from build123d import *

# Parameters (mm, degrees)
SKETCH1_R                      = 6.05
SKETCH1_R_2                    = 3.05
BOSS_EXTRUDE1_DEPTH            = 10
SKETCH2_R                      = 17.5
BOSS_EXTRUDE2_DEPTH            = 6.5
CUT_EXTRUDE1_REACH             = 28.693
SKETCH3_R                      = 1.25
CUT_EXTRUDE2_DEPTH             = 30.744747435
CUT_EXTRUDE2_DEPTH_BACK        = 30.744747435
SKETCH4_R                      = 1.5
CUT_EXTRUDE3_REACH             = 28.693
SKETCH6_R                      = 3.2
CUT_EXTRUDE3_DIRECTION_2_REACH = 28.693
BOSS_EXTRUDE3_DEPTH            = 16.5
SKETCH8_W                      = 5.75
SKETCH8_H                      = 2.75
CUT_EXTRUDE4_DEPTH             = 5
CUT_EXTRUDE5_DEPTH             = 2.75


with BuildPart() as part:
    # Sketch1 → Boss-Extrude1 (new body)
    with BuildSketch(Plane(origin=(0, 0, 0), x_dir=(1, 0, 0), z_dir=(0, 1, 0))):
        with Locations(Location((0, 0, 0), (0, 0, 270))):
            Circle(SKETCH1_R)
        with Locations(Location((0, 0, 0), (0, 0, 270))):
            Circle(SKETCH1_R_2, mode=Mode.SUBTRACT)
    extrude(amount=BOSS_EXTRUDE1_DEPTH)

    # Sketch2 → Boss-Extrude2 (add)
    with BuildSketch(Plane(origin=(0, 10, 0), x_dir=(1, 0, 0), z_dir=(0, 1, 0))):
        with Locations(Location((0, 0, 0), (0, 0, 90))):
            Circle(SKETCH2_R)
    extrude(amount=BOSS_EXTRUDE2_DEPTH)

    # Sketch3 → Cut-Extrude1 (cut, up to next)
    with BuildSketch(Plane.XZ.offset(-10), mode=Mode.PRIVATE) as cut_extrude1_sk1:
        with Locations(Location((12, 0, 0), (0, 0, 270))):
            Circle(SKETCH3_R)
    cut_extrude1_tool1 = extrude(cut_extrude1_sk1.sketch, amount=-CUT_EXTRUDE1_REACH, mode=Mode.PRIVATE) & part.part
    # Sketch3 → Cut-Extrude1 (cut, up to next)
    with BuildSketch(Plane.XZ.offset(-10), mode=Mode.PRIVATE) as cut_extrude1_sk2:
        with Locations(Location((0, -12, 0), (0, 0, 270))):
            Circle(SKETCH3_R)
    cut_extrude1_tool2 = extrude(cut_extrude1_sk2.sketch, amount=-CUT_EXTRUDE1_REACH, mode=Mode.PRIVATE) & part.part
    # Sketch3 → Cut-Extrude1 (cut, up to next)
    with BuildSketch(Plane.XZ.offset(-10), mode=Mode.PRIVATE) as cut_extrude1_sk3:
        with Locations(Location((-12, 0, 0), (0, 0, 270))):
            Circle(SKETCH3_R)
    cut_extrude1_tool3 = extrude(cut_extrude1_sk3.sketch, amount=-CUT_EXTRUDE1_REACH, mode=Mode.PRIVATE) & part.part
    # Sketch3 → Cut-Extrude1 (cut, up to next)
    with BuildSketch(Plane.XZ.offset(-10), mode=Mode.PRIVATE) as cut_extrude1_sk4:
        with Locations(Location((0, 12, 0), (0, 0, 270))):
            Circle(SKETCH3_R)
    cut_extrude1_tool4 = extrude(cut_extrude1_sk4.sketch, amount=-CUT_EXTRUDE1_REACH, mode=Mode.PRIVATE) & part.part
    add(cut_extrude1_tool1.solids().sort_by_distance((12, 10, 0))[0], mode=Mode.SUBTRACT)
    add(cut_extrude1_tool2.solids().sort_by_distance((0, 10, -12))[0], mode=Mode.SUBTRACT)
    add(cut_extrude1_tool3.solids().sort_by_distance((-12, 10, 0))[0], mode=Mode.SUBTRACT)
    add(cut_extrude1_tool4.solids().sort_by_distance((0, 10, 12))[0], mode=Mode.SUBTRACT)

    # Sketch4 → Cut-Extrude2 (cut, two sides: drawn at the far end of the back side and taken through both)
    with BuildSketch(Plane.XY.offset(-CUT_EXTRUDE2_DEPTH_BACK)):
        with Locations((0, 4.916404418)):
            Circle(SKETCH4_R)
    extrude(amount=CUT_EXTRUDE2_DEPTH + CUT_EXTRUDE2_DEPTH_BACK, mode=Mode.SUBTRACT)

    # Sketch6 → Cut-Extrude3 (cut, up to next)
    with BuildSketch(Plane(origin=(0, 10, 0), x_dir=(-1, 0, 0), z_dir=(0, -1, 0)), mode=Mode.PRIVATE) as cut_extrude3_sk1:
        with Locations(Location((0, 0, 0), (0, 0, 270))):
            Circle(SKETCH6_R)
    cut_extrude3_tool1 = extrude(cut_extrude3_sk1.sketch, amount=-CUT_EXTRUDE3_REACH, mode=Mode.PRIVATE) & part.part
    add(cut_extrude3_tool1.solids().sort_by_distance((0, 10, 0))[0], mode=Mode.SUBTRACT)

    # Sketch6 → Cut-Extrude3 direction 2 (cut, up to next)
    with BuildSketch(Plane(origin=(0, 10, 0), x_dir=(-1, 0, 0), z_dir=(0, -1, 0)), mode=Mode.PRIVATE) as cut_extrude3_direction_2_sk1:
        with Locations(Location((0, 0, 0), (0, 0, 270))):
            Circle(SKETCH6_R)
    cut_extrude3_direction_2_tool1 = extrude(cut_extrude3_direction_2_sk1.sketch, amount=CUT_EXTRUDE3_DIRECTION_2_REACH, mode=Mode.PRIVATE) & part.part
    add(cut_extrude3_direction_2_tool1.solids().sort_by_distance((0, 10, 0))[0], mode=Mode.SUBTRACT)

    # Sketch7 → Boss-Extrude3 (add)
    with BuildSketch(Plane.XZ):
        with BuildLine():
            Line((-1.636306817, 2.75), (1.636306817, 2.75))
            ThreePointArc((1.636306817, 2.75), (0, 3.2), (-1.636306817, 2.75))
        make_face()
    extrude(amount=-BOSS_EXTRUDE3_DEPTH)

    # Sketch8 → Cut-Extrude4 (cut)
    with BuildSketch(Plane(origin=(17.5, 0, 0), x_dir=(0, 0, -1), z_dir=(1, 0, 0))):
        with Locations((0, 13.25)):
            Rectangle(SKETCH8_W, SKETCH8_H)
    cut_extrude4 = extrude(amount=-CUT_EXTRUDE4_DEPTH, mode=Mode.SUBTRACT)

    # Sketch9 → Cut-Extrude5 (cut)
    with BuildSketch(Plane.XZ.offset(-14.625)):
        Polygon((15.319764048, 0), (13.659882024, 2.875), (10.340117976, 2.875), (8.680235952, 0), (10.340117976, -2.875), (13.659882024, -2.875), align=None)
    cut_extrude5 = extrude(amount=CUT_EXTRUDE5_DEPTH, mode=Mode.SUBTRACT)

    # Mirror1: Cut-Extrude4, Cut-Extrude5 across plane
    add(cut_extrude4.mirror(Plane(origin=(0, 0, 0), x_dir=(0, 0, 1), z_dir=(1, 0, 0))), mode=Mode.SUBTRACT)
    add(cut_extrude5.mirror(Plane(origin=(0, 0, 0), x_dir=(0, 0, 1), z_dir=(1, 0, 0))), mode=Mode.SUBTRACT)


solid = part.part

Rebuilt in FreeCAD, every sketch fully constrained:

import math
import FreeCAD as App
import Part
import Sketcher
from FreeCAD import Vector
Q = App.Units.Quantity


def add_polygon(sketch, points):
    """Adds a closed chain of lines whose ends are joined by coincident constraints."""
    first, n = sketch.GeometryCount, len(points)
    for a, b in zip(points, points[1:] + points[:1]):
        sketch.addGeometry(Part.LineSegment(App.Vector(*a, 0), App.Vector(*b, 0)), False)
    for i in range(n):
        sketch.addConstraint(Sketcher.Constraint("Coincident", first + i, 2, first + (i + 1) % n, 1))

doc = App.newDocument("Part")
body = doc.addObject("PartDesign::Body", "Body")

sketch1 = body.newObject("Sketcher::SketchObject", "Sketch")
sketch1.AttachmentSupport = (doc.getObject("XZ_Plane"), [""])
sketch1.MapMode = "FlatFace"
sketch1.addGeometry([
    Part.Circle(Vector(0, 0, 0), Vector(0, 0, 1), 6),
    Part.Circle(Vector(0, 0, 0), Vector(0, 0, 1), 3),
], False)
sketch1.addConstraint([
    Sketcher.Constraint("Coincident", 0, 3, -1, 1),
    Sketcher.Constraint("Coincident", 1, 3, -1, 1),
    Sketcher.Constraint("Diameter", 0, Q("12.1 mm")),
    Sketcher.Constraint("Diameter", 1, Q("6.1 mm")),
])
pad1 = body.newObject("PartDesign::Pad", "Pad")
pad1.Profile = sketch1
pad1.Length = 10
pad1.Reversed = True

sketch2 = body.newObject("Sketcher::SketchObject", "Sketch001")
sketch2.AttachmentSupport = (doc.getObject("XZ_Plane"), [""])
sketch2.MapMode = "FlatFace"
sketch2.AttachmentOffset = App.Placement(Vector(0, 0, -10), App.Rotation())
sketch2.addGeometry(Part.Circle(Vector(0, 0, 0), Vector(0, 0, 1), 18), False)
sketch2.addConstraint([
    Sketcher.Constraint("Coincident", 0, 3, -1, 1),
    Sketcher.Constraint("Diameter", 0, Q("35 mm")),
])
pad2 = body.newObject("PartDesign::Pad", "Pad001")
pad2.Profile = sketch2
pad2.Length = 6.5
pad2.Reversed = True

sketch3 = body.newObject("Sketcher::SketchObject", "Sketch002")
sketch3.AttachmentSupport = (doc.getObject("XZ_Plane"), [""])
sketch3.MapMode = "FlatFace"
sketch3.AttachmentOffset = App.Placement(Vector(0, 0, -10), App.Rotation())
sketch3.addGeometry(Part.Circle(Vector(12, 0, 0), Vector(0, 0, 1), 1.2), False)
sketch3.addConstraint([
    Sketcher.Constraint("PointOnObject", 0, 3, -1),
    Sketcher.Constraint("Diameter", 0, Q("2.5 mm")),
    Sketcher.Constraint("DistanceX", -1, 1, 0, 3, Q("12 mm")),
])
pocket1 = body.newObject("PartDesign::Pocket", "Pocket")
pocket1.Profile = sketch3
pocket1.Type = "UpToFirst"

sketch4 = body.newObject("Sketcher::SketchObject", "Sketch003")
sketch4.AttachmentSupport = (doc.getObject("XZ_Plane"), [""])
sketch4.MapMode = "FlatFace"
sketch4.AttachmentOffset = App.Placement(Vector(0, 0, -10), App.Rotation())
sketch4.addGeometry(Part.Circle(Vector(0, -12, 0), Vector(0, 0, 1), 1.2), False)
sketch4.addConstraint([
    Sketcher.Constraint("PointOnObject", 0, 3, -2),
    Sketcher.Constraint("Diameter", 0, Q("2.5 mm")),
    Sketcher.Constraint("DistanceY", 0, 3, -1, 1, Q("12 mm")),
])
pocket2 = body.newObject("PartDesign::Pocket", "Pocket001")
pocket2.Profile = sketch4
pocket2.Type = "UpToFirst"

sketch5 = body.newObject("Sketcher::SketchObject", "Sketch004")
sketch5.AttachmentSupport = (doc.getObject("XZ_Plane"), [""])
sketch5.MapMode = "FlatFace"
sketch5.AttachmentOffset = App.Placement(Vector(0, 0, -10), App.Rotation())
sketch5.addGeometry(Part.Circle(Vector(-12, 0, 0), Vector(0, 0, 1), 1.2), False)
sketch5.addConstraint([
    Sketcher.Constraint("PointOnObject", 0, 3, -1),
    Sketcher.Constraint("Diameter", 0, Q("2.5 mm")),
    Sketcher.Constraint("DistanceX", 0, 3, -1, 1, Q("12 mm")),
])
pocket3 = body.newObject("PartDesign::Pocket", "Pocket002")
pocket3.Profile = sketch5
pocket3.Type = "UpToFirst"

sketch6 = body.newObject("Sketcher::SketchObject", "Sketch005")
sketch6.AttachmentSupport = (doc.getObject("XZ_Plane"), [""])
sketch6.MapMode = "FlatFace"
sketch6.AttachmentOffset = App.Placement(Vector(0, 0, -10), App.Rotation())
sketch6.addGeometry(Part.Circle(Vector(0, 12, 0), Vector(0, 0, 1), 1.2), False)
sketch6.addConstraint([
    Sketcher.Constraint("PointOnObject", 0, 3, -2),
    Sketcher.Constraint("Diameter", 0, Q("2.5 mm")),
    Sketcher.Constraint("DistanceY", -1, 1, 0, 3, Q("12 mm")),
])
pocket4 = body.newObject("PartDesign::Pocket", "Pocket003")
pocket4.Profile = sketch6
pocket4.Type = "UpToFirst"

sketch7 = body.newObject("Sketcher::SketchObject", "Sketch006")
sketch7.AttachmentSupport = (doc.getObject("XY_Plane"), [""])
sketch7.MapMode = "FlatFace"
sketch7.addGeometry(Part.Circle(Vector(0, 4.9, 0), Vector(0, 0, 1), 1.5), False)
sketch7.addConstraint([
    Sketcher.Constraint("PointOnObject", 0, 3, -2),
    Sketcher.Constraint("Diameter", 0, Q("3 mm")),
    Sketcher.Constraint("DistanceY", -1, 1, 0, 3, Q("4.916404 mm")),
])
pocket5 = body.newObject("PartDesign::Pocket", "Pocket004")
pocket5.Profile = sketch7
pocket5.Type = "ThroughAll"
pocket5.Midplane = True

sketch8 = body.newObject("Sketcher::SketchObject", "Sketch007")
sketch8.AttachmentSupport = (doc.getObject("XZ_Plane"), [""])
sketch8.MapMode = "FlatFace"
sketch8.AttachmentOffset = App.Placement(Vector(0, 0, -10), App.Rotation())
sketch8.addGeometry(Part.Circle(Vector(0, 0, 0), Vector(0, 0, 1), 3.2), False)
sketch8.addConstraint([
    Sketcher.Constraint("Coincident", 0, 3, -1, 1),
    Sketcher.Constraint("Diameter", 0, Q("6.4 mm")),
])
pocket6 = body.newObject("PartDesign::Pocket", "Pocket005")
pocket6.Profile = sketch8
pocket6.Type = "UpToFirst"

sketch9 = body.newObject("Sketcher::SketchObject", "Sketch008")
sketch9.AttachmentSupport = (doc.getObject("XZ_Plane"), [""])
sketch9.MapMode = "FlatFace"
sketch9.AttachmentOffset = App.Placement(Vector(0, 0, -10), App.Rotation())
sketch9.addGeometry(Part.Circle(Vector(0, 0, 0), Vector(0, 0, 1), 3.2), False)
sketch9.addConstraint([
    Sketcher.Constraint("Coincident", 0, 3, -1, 1),
    Sketcher.Constraint("Diameter", 0, Q("6.4 mm")),
])
pocket7 = body.newObject("PartDesign::Pocket", "Pocket006")
pocket7.Profile = sketch9
pocket7.Length = 10
pocket7.Reversed = True

sketch10 = body.newObject("Sketcher::SketchObject", "Sketch009")
sketch10.AttachmentSupport = (doc.getObject("XZ_Plane"), [""])
sketch10.MapMode = "FlatFace"
sketch10.addGeometry([
    Part.LineSegment(Vector(-1.6, 2.8, 0), Vector(1.6, 2.8, 0)),
    Part.ArcOfCircle(Part.Circle(Vector(0, 0, 0), Vector(0, 0, 1), 3.2), math.radians(59), math.radians(121)),
], False)
sketch10.addConstraint([
    Sketcher.Constraint("Coincident", 0, 1, 1, 2),
    Sketcher.Constraint("Coincident", 1, 1, 0, 2),
    Sketcher.Constraint("Horizontal", 0),
    Sketcher.Constraint("Coincident", 1, 3, -1, 1),
    Sketcher.Constraint("Radius", 1, Q("3.2 mm")),
    Sketcher.Constraint("DistanceY", -1, 1, 0, 1, Q("2.75 mm")),
])
pad3 = body.newObject("PartDesign::Pad", "Pad002")
pad3.Profile = sketch10
pad3.Length = 16.5
pad3.Reversed = True

sketch11 = body.newObject("Sketcher::SketchObject", "Sketch010")
sketch11.AttachmentSupport = (doc.getObject("YZ_Plane"), [""])
sketch11.MapMode = "FlatFace"
sketch11.AttachmentOffset = App.Placement(Vector(0, 0, 17.5), App.Rotation())
add_polygon(sketch11, [(14.6, 2.9), (11.9, 2.9), (11.9, -2.9), (14.6, -2.9)])
sketch11.addConstraint([
    Sketcher.Constraint("Horizontal", 0),
    Sketcher.Constraint("Vertical", 1),
    Sketcher.Constraint("Horizontal", 2),
    Sketcher.Constraint("Vertical", 3),
    Sketcher.Constraint("DistanceX", 0, 2, 0, 1, Q("2.75 mm")),
    Sketcher.Constraint("DistanceY", 1, 2, 1, 1, Q("5.75 mm")),
    Sketcher.Constraint("DistanceX", -1, 1, 0, 2, Q("11.875 mm")),
    Sketcher.Constraint("DistanceY", -1, 1, 0, 2, Q("2.875 mm")),
])
pocket8 = body.newObject("PartDesign::Pocket", "Pocket007")
pocket8.Profile = sketch11
pocket8.Length = 5

sketch12 = body.newObject("Sketcher::SketchObject", "Sketch011")
sketch12.AttachmentSupport = (doc.getObject("XZ_Plane"), [""])
sketch12.MapMode = "FlatFace"
sketch12.AttachmentOffset = App.Placement(Vector(0, 0, -14.625), App.Rotation())
add_polygon(sketch12, [(15.3, 0), (13.7, 2.9), (10.3, 2.9), (8.7, 0), (10.3, -2.9), (13.7, -2.9)])
sketch12.addConstraint([
    Sketcher.Constraint("Horizontal", 1),
    Sketcher.Constraint("Horizontal", 4),
    Sketcher.Constraint("Symmetric", 1, 2, 3, 2, -1),
    Sketcher.Constraint("PointOnObject", 2, 2, -1),
    Sketcher.Constraint("PointOnObject", 5, 2, -1),
    Sketcher.Constraint("Parallel", 0, 3),
    Sketcher.Constraint("Parallel", 2, 5),
    Sketcher.Constraint("Angle", 0, Q("120 deg")),
    Sketcher.Constraint("DistanceY", 3, 2, 1, 2, Q("5.75 mm")),
    Sketcher.Constraint("DistanceX", 1, 2, 1, 1, Q("3.319764 mm")),
    Sketcher.Constraint("DistanceX", -1, 1, 0, 2, Q("13.659882 mm")),
])
pocket9 = body.newObject("PartDesign::Pocket", "Pocket008")
pocket9.Profile = sketch12
pocket9.Length = 2.75
pocket9.Reversed = True
doc.recompute()

mirrored = body.newObject("PartDesign::Mirrored", "Mirrored")
mirrored.Originals = [pocket8, pocket9]
mirrored.MirrorPlane = (doc.getObject("YZ_Plane"), [""])
body.Tip = mirrored

doc.recompute()
